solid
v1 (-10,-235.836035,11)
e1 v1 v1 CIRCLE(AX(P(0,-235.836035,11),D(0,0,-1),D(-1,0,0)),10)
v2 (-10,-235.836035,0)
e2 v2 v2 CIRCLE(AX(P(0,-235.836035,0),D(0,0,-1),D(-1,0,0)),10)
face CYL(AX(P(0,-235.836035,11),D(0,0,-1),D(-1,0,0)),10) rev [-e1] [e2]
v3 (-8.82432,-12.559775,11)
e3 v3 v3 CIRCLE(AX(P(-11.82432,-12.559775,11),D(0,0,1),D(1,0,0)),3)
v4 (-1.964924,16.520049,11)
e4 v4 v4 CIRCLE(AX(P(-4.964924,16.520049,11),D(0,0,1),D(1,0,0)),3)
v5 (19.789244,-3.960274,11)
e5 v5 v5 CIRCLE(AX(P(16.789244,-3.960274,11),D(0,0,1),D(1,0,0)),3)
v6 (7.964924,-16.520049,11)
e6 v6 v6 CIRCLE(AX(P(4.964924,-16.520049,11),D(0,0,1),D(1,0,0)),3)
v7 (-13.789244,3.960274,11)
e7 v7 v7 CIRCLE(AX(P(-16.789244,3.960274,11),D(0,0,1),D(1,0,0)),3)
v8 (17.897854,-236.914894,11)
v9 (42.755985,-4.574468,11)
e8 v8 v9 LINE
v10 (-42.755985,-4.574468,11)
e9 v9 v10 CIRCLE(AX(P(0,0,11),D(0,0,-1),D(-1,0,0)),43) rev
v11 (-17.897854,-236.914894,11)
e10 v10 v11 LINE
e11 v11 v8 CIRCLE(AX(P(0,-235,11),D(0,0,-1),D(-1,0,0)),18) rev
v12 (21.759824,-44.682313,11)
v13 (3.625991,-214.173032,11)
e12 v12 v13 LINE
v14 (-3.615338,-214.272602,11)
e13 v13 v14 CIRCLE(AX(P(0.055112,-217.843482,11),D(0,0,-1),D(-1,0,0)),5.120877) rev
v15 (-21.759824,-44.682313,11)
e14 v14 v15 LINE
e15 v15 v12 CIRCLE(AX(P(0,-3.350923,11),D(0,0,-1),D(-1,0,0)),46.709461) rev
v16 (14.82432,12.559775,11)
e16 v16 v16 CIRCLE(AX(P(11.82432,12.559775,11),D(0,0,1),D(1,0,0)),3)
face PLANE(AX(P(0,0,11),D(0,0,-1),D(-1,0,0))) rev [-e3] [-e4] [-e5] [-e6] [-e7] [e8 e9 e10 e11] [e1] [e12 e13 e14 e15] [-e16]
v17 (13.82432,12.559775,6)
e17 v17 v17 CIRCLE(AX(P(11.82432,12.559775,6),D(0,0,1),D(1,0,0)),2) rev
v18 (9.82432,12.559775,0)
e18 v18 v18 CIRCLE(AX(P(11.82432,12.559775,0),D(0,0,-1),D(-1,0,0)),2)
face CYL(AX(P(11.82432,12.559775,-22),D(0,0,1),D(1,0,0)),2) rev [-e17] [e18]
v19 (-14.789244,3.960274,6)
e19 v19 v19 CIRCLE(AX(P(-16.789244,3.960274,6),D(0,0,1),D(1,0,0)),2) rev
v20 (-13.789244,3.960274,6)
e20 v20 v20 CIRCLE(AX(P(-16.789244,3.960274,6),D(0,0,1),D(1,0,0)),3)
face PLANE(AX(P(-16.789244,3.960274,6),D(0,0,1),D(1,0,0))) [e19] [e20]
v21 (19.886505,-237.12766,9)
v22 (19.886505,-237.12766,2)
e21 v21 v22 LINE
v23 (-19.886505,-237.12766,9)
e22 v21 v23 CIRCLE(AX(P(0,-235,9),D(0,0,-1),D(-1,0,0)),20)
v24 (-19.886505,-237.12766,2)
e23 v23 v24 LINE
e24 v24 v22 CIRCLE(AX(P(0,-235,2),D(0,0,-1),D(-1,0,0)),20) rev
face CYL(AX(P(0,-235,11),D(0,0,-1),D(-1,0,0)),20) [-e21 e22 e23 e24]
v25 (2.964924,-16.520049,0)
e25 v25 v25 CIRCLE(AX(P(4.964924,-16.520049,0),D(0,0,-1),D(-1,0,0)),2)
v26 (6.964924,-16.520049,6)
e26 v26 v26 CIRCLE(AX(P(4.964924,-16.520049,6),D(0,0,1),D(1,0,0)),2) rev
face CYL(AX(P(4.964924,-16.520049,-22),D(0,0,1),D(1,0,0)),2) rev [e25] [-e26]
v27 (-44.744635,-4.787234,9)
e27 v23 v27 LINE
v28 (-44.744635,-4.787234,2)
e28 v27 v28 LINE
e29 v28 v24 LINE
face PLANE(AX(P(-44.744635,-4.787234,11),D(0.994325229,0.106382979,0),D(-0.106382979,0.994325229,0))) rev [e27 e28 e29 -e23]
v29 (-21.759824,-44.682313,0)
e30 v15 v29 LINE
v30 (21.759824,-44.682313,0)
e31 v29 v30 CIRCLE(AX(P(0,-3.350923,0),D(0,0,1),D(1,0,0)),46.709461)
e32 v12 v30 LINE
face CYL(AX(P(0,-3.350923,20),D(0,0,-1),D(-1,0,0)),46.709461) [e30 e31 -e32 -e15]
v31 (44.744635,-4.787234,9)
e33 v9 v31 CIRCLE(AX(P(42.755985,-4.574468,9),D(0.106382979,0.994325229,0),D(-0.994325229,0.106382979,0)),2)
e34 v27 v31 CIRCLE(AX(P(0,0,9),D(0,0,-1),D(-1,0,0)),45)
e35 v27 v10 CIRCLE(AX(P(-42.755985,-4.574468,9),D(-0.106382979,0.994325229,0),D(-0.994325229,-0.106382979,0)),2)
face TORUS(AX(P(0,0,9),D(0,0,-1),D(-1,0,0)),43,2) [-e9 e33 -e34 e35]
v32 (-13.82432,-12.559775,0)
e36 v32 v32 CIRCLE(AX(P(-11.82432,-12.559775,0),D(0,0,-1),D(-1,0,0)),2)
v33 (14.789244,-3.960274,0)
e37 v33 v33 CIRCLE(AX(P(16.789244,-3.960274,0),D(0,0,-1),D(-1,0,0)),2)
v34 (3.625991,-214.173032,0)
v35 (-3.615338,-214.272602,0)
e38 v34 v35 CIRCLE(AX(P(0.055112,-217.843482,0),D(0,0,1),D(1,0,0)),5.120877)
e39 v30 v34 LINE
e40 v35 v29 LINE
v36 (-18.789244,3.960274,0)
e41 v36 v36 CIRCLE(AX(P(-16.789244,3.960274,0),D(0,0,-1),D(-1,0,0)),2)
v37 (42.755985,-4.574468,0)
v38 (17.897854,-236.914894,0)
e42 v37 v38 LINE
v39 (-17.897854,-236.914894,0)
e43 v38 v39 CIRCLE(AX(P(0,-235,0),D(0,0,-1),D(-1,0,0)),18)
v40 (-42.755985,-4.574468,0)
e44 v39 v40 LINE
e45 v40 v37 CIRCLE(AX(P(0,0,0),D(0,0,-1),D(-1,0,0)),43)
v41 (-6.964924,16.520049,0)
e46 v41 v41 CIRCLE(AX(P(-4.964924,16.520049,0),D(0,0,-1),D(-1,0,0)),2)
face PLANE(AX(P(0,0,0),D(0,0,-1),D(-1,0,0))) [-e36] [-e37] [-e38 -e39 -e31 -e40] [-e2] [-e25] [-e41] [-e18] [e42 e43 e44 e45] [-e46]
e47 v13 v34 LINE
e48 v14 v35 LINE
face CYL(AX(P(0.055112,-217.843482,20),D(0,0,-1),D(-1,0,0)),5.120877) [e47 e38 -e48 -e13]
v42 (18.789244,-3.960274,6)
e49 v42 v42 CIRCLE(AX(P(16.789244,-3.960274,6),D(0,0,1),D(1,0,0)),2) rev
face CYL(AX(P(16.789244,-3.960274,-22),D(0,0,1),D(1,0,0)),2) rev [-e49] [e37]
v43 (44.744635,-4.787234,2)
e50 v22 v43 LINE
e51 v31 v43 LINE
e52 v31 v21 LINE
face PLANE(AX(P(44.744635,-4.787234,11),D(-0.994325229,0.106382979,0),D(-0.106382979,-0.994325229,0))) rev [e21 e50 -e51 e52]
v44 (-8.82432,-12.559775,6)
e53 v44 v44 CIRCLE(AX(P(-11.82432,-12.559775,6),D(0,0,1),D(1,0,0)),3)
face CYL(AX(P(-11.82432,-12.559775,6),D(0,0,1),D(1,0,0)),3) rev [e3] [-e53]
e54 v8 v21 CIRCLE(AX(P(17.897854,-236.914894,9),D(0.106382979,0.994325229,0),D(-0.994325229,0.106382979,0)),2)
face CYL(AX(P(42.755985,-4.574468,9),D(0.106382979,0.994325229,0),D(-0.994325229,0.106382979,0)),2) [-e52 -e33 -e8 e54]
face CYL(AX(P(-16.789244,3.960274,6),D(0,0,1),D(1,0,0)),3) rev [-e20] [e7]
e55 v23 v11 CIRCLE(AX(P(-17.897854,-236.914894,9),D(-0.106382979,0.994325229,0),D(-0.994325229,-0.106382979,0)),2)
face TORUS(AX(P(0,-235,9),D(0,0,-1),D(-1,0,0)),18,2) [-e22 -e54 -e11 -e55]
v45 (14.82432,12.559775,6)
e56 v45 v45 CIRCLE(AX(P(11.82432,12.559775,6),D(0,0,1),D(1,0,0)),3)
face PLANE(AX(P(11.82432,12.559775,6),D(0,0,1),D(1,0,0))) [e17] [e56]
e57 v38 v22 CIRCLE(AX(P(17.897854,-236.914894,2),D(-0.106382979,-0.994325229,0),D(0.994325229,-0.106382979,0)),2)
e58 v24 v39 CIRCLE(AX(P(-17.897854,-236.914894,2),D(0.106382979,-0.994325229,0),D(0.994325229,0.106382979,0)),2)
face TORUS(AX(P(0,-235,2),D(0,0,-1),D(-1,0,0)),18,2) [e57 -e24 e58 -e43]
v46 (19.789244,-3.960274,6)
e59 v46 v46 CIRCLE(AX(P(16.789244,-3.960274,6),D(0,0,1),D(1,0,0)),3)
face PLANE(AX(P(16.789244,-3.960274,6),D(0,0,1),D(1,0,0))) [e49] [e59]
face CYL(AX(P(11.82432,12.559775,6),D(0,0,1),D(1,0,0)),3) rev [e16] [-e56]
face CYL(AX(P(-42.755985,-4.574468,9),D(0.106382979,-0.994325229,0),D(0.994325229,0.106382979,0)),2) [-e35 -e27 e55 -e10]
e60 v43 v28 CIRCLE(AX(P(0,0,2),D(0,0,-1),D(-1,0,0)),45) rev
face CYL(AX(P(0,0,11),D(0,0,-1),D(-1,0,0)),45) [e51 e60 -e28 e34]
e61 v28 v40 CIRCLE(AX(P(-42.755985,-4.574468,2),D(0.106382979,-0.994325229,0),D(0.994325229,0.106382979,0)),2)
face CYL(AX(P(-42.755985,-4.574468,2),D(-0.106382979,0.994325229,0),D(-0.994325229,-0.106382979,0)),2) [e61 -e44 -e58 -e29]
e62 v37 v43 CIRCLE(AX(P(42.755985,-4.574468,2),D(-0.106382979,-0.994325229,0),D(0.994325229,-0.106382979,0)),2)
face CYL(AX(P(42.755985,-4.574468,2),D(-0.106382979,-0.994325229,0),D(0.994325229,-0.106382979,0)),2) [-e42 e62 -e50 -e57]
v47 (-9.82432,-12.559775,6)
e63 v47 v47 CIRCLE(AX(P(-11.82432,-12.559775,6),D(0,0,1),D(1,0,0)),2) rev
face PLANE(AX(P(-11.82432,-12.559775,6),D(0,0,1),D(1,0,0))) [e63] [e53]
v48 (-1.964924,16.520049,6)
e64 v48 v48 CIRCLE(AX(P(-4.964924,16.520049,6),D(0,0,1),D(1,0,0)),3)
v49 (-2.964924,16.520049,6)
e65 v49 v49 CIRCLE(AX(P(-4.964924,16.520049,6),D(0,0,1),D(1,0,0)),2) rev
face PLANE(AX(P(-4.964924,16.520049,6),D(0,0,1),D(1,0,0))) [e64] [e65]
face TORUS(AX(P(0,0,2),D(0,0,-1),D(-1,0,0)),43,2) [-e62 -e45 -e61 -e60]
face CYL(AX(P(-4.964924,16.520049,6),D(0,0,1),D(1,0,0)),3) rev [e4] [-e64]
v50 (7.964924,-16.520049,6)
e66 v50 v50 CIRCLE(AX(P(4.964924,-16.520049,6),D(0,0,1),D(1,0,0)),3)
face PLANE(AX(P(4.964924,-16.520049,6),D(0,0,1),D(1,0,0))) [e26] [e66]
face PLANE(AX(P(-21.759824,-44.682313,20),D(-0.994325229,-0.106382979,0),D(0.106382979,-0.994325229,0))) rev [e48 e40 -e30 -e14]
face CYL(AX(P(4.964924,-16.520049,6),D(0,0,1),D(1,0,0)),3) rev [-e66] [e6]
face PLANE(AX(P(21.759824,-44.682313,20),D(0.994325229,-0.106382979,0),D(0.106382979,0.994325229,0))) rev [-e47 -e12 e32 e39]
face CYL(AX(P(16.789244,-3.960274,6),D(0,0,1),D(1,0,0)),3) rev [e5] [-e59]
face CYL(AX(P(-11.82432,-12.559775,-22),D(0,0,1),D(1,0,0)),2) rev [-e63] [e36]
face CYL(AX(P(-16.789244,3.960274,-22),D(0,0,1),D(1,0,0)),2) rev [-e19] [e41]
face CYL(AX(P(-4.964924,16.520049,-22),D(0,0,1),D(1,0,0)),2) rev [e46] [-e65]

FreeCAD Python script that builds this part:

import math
import FreeCAD as App
import Part
import Sketcher

V = App.Vector


def edges_at(feature, points):
    """Names of the edges that pass closest to the given points."""
    edges = feature.Shape.Edges
    near = lambda p: min(range(len(edges)), key=lambda i: edges[i].distToShape(Part.Vertex(*p))[0])
    return sorted({f"Edge{near(p) + 1}" for p in points})

doc = App.newDocument("Part")
params = doc.addObject("Spreadsheet::Sheet", "Params")
for row, (alias, value) in enumerate([
    ("sketch1_radius", "20 mm"),
    ("sketch1_radius2", "45 mm"),
    ("pad1_length", "11 mm"),
    ("sketch2_diameter", "20 mm"),
    ("pocket1_length", "11 mm"),
    ("fillet_radius", "2 mm"),
    ("pocket2_length", "20 mm"),
    ("sketch4_diameter", "4 mm"),
    ("pocket3_length", "33 mm"),
    ("sketch5_diameter", "6 mm"),
    ("pocket4_length", "5 mm"),
], start=1):
    params.set(f"A{row}", alias)
    params.set(f"B{row}", "=" + value)
    params.setAlias(f"B{row}", alias)

body = doc.addObject("PartDesign::Body", "Body")

# Sketch on XY plane
sketch1 = body.newObject("Sketcher::SketchObject", "Sketch")
sketch1.AttachmentSupport = (doc.getObject("XY_Plane"), [""])
sketch1.MapMode = "FlatFace"
sketch1.addGeometry([
    Part.LineSegment(V(-45, -5, 0), V(-20, -237, 0)),
    Part.ArcOfCircle(Part.Circle(V(0, -235, 0), V(0, 0, 1), 20), math.radians(-174), math.radians(-6)),
    Part.LineSegment(V(20, -237, 0), V(45, -5, 0)),
    Part.ArcOfCircle(Part.Circle(V(0, 0, 0), V(0, 0, 1), 45), math.radians(-6), math.radians(186)),
], False)
sketch1.addConstraint([
    Sketcher.Constraint("Tangent", 0, 2, 1, 1),
    Sketcher.Constraint("Tangent", 1, 2, 2, 1),
    Sketcher.Constraint("Tangent", 2, 2, 3, 1),
    Sketcher.Constraint("Tangent", 3, 2, 0, 1),
    Sketcher.Constraint("Coincident", 3, 3, -1, 1),
    Sketcher.Constraint("PointOnObject", 1, 3, -2),
    Sketcher.Constraint("Radius", 1, 20.0),
    Sketcher.Constraint("Radius", 3, 45.0),
    Sketcher.Constraint("DistanceY", 1, 3, -1, 1, 235.0),
])
sketch1.setExpression("Constraints[6]", "Params.sketch1_radius")
sketch1.setExpression("Constraints[7]", "Params.sketch1_radius2")
pad1 = body.newObject("PartDesign::Pad", "Pad")
pad1.Profile = sketch1
pad1.setExpression("Length", "Params.pad1_length")

# Sketch on XY plane
sketch2 = body.newObject("Sketcher::SketchObject", "Sketch001")
sketch2.AttachmentSupport = (doc.getObject("XY_Plane"), [""])
sketch2.MapMode = "FlatFace"
sketch2.addGeometry(Part.Circle(V(0, -236, 0), V(0, 0, 1), 10), False)
sketch2.addConstraint([
    Sketcher.Constraint("PointOnObject", 0, 3, -2),
    Sketcher.Constraint("Diameter", 0, 20.0),
    Sketcher.Constraint("DistanceY", 0, 3, -1, 1, 235.836035),
])
sketch2.setExpression("Constraints[1]", "Params.sketch2_diameter")
pocket1 = body.newObject("PartDesign::Pocket", "Pocket")
pocket1.Profile = sketch2
pocket1.setExpression("Length", "Params.pocket1_length")
pocket1.Reversed = True
doc.recompute()

fillet = body.newObject("PartDesign::Fillet", "Fillet")
fillet.Base = (pocket1, edges_at(pocket1, [
    (0, -255, 11),
    (32.316, -120.957, 11),
    (0, 45, 11),
    (32.316, -120.957, 0),
    (0, -255, 0),
    (-32.316, -120.957, 0),
    (0, 45, 0),
    (-32.316, -120.957, 11),
]))
fillet.setExpression("Radius", "Params.fillet_radius")

# Sketch on XY plane
sketch3 = body.newObject("Sketcher::SketchObject", "Sketch002")
sketch3.AttachmentSupport = (doc.getObject("XY_Plane"), [""])
sketch3.MapMode = "FlatFace"
sketch3.addGeometry([
    Part.LineSegment(V(22, -45, 0), V(4, -214, 0)),
    Part.ArcOfCircle(Part.Circle(V(0, -218, 0), V(0, 0, 1), 5), math.radians(46), math.radians(136)),
    Part.LineSegment(V(-4, -214, 0), V(-22, -45, 0)),
    Part.ArcOfCircle(Part.Circle(V(0, -3, 0), V(0, 0, 1), 47), math.radians(-118), math.radians(-62)),
], False)
sketch3.addConstraint([
    Sketcher.Constraint("Coincident", 0, 2, 1, 1),
    Sketcher.Constraint("Coincident", 1, 2, 2, 1),
    Sketcher.Constraint("Coincident", 2, 2, 3, 1),
    Sketcher.Constraint("Coincident", 3, 2, 0, 1),
    Sketcher.Constraint("Symmetric", 2, 2, 3, 2, -2),
    Sketcher.Constraint("Radius", 3, 46.709461),
    Sketcher.Constraint("Radius", 1, 5.120877),
    Sketcher.Constraint("Distance", 0, 170.45803),
    Sketcher.Constraint("Distance", 2, 170.558168),
    Sketcher.Constraint("DistanceX", -1, 1, 1, 3, 0.055112),
    Sketcher.Constraint("DistanceX", -1, 1, 0, 2, 3.625991),
    Sketcher.Constraint("DistanceY", 1, 3, 3, 3, 214.492559),
    Sketcher.Constraint("DistanceY", 1, 3, -1, 1, 217.843482),
])
pocket2 = body.newObject("PartDesign::Pocket", "Pocket001")
pocket2.Profile = sketch3
pocket2.setExpression("Length", "Params.pocket2_length")
pocket2.Reversed = True

# Sketch on XY plane
sketch4 = body.newObject("Sketcher::SketchObject", "Sketch003")
sketch4.AttachmentSupport = (doc.getObject("XY_Plane"), [""])
sketch4.MapMode = "FlatFace"
sketch4.AttachmentOffset = App.Placement(V(0, 0, 11), App.Rotation())
sketch4.addGeometry([
    Part.Circle(V(-16.8, 4, 0), V(0, 0, 1), 2),  # 0
    Part.Circle(V(-5, 16.5, 0), V(0, 0, 1), 2),  # 1
    Part.Circle(V(11.8, 12.6, 0), V(0, 0, 1), 2),  # 2
    Part.Circle(V(16.8, -4, 0), V(0, 0, 1), 2),  # 3
    Part.Circle(V(5, -16.5, 0), V(0, 0, 1), 2),  # 4
    Part.Circle(V(-11.8, -12.6, 0), V(0, 0, 1), 2),  # 5
], False)
sketch4.addConstraint([
    Sketcher.Constraint("Equal", 0, 1),
    Sketcher.Constraint("Equal", 1, 2),
    Sketcher.Constraint("Equal", 2, 3),
    Sketcher.Constraint("Equal", 3, 4),
    Sketcher.Constraint("Equal", 4, 5),
    Sketcher.Constraint("Symmetric", 0, 3, 3, 3, -1, 1),
    Sketcher.Constraint("Symmetric", 1, 3, 4, 3, -1, 1),
    Sketcher.Constraint("Symmetric", 2, 3, 5, 3, -1, 1),
    Sketcher.Constraint("Diameter", 0, 4.0),
    Sketcher.Constraint("DistanceY", 0, 3, 2, 3, 8.599501),
    Sketcher.Constraint("DistanceY", 4, 3, 1, 3, 33.040099),
    Sketcher.Constraint("DistanceX", -1, 1, 2, 3, 11.82432),
    Sketcher.Constraint("DistanceX", 0, 3, 1, 3, 11.82432),
    Sketcher.Constraint("DistanceY", 3, 3, 2, 3, 16.520049),
    Sketcher.Constraint("DistanceX", 1, 3, 3, 3, 21.754168),
])
sketch4.setExpression("Constraints[8]", "Params.sketch4_diameter")
pocket3 = body.newObject("PartDesign::Pocket", "Pocket002")
pocket3.Profile = sketch4
pocket3.setExpression("Length", "Params.pocket3_length")

# Sketch on XY plane
sketch5 = body.newObject("Sketcher::SketchObject", "Sketch004")
sketch5.AttachmentSupport = (doc.getObject("XY_Plane"), [""])
sketch5.MapMode = "FlatFace"
sketch5.AttachmentOffset = App.Placement(V(0, 0, 11), App.Rotation())
sketch5.addGeometry([
    Part.Circle(V(-5, 16.5, 0), V(0, 0, 1), 3),  # 0
    Part.Circle(V(11.8, 12.6, 0), V(0, 0, 1), 3),  # 1
    Part.Circle(V(16.8, -4, 0), V(0, 0, 1), 3),  # 2
    Part.Circle(V(5, -16.5, 0), V(0, 0, 1), 3),  # 3
    Part.Circle(V(-11.8, -12.6, 0), V(0, 0, 1), 3),  # 4
    Part.Circle(V(-16.8, 4, 0), V(0, 0, 1), 3),  # 5
], False)
sketch5.addConstraint([
    Sketcher.Constraint("Equal", 0, 1),
    Sketcher.Constraint("Equal", 1, 2),
    Sketcher.Constraint("Equal", 2, 3),
    Sketcher.Constraint("Equal", 3, 4),
    Sketcher.Constraint("Equal", 4, 5),
    Sketcher.Constraint("Symmetric", 0, 3, 3, 3, -1, 1),
    Sketcher.Constraint("Symmetric", 1, 3, 4, 3, -1, 1),
    Sketcher.Constraint("Symmetric", 2, 3, 5, 3, -1, 1),
    Sketcher.Constraint("Diameter", 0, 6.0),
    Sketcher.Constraint("DistanceY", 3, 3, 0, 3, 33.040099),
    Sketcher.Constraint("DistanceY", 4, 3, 2, 3, 8.599501),
    Sketcher.Constraint("DistanceX", -1, 1, 1, 3, 11.82432),
    Sketcher.Constraint("DistanceY", 2, 3, 1, 3, 16.520049),
    Sketcher.Constraint("DistanceX", 0, 3, 2, 3, 21.754168),
    Sketcher.Constraint("DistanceX", 3, 3, 2, 3, 11.82432),
])
sketch5.setExpression("Constraints[8]", "Params.sketch5_diameter")
pocket4 = body.newObject("PartDesign::Pocket", "Pocket003")
pocket4.Profile = sketch5
pocket4.setExpression("Length", "Params.pocket4_length")

doc.recompute()
